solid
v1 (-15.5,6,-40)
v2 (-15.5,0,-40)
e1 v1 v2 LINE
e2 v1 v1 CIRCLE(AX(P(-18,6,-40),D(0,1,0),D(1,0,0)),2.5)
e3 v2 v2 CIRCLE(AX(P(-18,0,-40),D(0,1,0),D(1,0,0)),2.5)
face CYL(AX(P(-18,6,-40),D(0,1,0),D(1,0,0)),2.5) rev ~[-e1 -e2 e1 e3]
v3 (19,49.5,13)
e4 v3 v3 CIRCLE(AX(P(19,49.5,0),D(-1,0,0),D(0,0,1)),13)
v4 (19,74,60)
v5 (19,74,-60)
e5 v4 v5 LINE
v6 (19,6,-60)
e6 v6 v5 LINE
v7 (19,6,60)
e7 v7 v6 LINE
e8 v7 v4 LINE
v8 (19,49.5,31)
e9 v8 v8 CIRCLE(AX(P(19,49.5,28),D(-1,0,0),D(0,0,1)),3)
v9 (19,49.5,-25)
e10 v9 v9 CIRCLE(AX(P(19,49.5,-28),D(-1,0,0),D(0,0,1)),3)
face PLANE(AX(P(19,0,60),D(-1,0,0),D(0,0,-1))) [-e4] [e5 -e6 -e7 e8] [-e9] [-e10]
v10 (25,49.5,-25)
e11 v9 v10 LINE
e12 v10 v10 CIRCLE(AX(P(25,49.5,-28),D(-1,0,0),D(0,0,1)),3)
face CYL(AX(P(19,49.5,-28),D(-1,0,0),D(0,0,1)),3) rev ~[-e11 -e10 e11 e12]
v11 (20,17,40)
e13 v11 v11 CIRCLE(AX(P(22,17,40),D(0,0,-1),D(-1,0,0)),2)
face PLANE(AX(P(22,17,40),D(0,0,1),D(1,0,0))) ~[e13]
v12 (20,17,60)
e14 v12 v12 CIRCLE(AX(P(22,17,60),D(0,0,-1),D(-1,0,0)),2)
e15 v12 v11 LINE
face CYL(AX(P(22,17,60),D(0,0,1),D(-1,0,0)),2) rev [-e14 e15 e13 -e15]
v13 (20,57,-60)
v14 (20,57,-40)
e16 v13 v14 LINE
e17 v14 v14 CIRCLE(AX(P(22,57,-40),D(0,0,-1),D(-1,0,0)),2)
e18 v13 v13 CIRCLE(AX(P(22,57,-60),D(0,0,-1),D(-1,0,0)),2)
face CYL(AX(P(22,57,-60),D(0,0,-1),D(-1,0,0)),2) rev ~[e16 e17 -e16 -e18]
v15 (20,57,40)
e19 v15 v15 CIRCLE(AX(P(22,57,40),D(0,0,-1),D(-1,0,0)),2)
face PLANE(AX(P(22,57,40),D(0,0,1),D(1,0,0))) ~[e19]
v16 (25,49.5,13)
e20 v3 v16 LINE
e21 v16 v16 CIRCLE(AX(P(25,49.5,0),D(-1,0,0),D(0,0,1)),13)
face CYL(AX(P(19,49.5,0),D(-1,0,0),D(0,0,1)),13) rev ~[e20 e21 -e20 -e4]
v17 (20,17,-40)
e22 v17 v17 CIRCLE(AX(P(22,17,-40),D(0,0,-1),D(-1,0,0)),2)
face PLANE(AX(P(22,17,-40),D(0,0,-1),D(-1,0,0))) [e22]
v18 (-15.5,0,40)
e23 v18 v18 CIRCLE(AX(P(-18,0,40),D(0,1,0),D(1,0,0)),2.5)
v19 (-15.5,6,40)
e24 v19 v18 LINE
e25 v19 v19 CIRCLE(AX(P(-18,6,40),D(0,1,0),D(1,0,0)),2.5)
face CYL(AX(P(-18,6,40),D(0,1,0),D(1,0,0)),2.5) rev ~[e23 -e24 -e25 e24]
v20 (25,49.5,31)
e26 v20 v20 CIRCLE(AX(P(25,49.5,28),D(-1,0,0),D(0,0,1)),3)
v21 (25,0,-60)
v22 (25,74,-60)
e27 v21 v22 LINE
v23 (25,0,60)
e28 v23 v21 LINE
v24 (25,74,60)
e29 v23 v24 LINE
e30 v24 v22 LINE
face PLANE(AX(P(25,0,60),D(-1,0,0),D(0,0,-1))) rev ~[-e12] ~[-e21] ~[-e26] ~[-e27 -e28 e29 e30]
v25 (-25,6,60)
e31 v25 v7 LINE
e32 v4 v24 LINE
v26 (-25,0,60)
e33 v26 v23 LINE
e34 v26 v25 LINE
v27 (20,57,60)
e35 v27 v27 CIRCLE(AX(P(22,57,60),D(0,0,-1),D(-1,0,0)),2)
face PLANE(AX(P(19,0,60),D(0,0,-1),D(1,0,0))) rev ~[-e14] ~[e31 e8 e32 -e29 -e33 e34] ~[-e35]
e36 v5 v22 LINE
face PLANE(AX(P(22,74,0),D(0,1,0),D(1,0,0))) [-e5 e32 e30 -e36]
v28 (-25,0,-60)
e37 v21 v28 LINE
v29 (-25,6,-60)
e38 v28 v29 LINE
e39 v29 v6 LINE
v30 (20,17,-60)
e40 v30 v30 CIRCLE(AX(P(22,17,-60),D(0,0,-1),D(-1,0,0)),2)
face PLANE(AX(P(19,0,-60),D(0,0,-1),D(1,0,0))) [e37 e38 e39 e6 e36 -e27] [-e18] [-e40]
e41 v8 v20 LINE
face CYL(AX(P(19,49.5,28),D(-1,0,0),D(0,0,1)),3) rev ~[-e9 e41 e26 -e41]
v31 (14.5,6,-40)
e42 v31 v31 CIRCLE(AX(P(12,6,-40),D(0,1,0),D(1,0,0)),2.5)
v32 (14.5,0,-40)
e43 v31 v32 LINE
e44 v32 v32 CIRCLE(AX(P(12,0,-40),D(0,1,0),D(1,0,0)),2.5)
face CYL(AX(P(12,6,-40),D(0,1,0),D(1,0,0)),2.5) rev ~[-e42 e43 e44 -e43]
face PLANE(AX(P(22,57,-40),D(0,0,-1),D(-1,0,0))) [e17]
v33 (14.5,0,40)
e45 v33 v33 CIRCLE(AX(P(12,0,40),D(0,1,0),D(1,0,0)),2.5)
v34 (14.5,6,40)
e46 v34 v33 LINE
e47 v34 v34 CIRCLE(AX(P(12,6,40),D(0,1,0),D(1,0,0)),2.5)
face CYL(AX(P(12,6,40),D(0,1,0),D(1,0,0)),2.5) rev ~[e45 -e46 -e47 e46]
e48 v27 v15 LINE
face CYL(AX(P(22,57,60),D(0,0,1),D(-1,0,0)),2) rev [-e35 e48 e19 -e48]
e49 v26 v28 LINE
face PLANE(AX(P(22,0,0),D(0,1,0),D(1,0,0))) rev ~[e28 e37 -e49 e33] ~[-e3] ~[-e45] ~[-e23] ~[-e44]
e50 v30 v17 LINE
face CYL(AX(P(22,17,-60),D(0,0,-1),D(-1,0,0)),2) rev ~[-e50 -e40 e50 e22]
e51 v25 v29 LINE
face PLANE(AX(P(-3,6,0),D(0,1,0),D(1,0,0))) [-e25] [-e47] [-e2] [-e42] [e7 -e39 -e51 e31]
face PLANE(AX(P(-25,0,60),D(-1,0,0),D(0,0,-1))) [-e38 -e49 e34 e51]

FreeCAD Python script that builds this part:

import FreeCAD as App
import Part
import Sketcher

V = App.Vector


def add_polygon(sketch, points):
    """Adds a closed chain of lines whose ends are joined by coincident constraints."""
    first, n = sketch.GeometryCount, len(points)
    for a, b in zip(points, points[1:] + points[:1]):
        sketch.addGeometry(Part.LineSegment(App.Vector(*a, 0), App.Vector(*b, 0)), False)
    for i in range(n):
        sketch.addConstraint(Sketcher.Constraint("Coincident", first + i, 2, first + (i + 1) % n, 1))

doc = App.newDocument("Part")
body = doc.addObject("PartDesign::Body", "Body")

sketch1 = body.newObject("Sketcher::SketchObject", "Sketch")
sketch1.AttachmentSupport = (doc.getObject("XZ_Plane"), [""])
sketch1.MapMode = "FlatFace"
add_polygon(sketch1, [(-25, -60), (-25, 60), (19, 60), (19, -60)])
sketch1.addConstraint([
    Sketcher.Constraint("Vertical", 0),
    Sketcher.Constraint("Horizontal", 1),
    Sketcher.Constraint("Vertical", 2),
    Sketcher.Constraint("Horizontal", 3),
    Sketcher.Constraint("DistanceX", 1, 1, 1, 2, 44.0),
    Sketcher.Constraint("DistanceY", 0, 1, 0, 2, 120.0),
    Sketcher.Constraint("DistanceX", 0, 2, -1, 1, 25.0),
    Sketcher.Constraint("DistanceY", -1, 1, 0, 2, 60.0),
])
pad1 = body.newObject("PartDesign::Pad", "Pad")
pad1.Profile = sketch1
pad1.Length = 6
pad1.Reversed = True

sketch2 = body.newObject("Sketcher::SketchObject", "Sketch001")
sketch2.AttachmentSupport = (doc.getObject("XZ_Plane"), [""])
sketch2.MapMode = "FlatFace"
add_polygon(sketch2, [(19, -60), (19, 60), (25, 60), (25, -60)])
sketch2.addConstraint([
    Sketcher.Constraint("Vertical", 0),
    Sketcher.Constraint("Horizontal", 1),
    Sketcher.Constraint("Vertical", 2),
    Sketcher.Constraint("Horizontal", 3),
    Sketcher.Constraint("DistanceX", 1, 1, 1, 2, 6.0),
    Sketcher.Constraint("DistanceY", 0, 1, 0, 2, 120.0),
    Sketcher.Constraint("DistanceX", -1, 1, 0, 2, 19.0),
    Sketcher.Constraint("DistanceY", -1, 1, 0, 2, 60.0),
])
pad2 = body.newObject("PartDesign::Pad", "Pad001")
pad2.Profile = sketch2
pad2.Length = 74
pad2.Reversed = True

sketch3 = body.newObject("Sketcher::SketchObject", "Sketch002")
sketch3.AttachmentSupport = (doc.getObject("YZ_Plane"), [""])
sketch3.MapMode = "FlatFace"
sketch3.AttachmentOffset = App.Placement(V(0, 0, 19), App.Rotation())
sketch3.addGeometry([
    Part.Circle(V(49.5, 0, 0), V(0, 0, 1), 13),
    Part.Circle(V(49.5, -28, 0), V(0, 0, 1), 3),
    Part.Circle(V(49.5, 28, 0), V(0, 0, 1), 3),
], False)
sketch3.addConstraint([
    Sketcher.Constraint("Equal", 1, 2),
    Sketcher.Constraint("Symmetric", 1, 3, 2, 3, -1),
    Sketcher.Constraint("PointOnObject", 0, 3, -1),
    Sketcher.Constraint("Vertical", 0, 3, 1, 3),
    Sketcher.Constraint("Diameter", 0, 26.0),
    Sketcher.Constraint("Diameter", 1, 6.0),
    Sketcher.Constraint("DistanceY", 1, 3, -1, 1, 28.0),
    Sketcher.Constraint("DistanceX", -1, 1, 0, 3, 49.5),
])
pocket1 = body.newObject("PartDesign::Pocket", "Pocket")
pocket1.Profile = sketch3
pocket1.Type = "ThroughAll"
pocket1.Reversed = True

sketch4 = body.newObject("Sketcher::SketchObject", "Sketch003")
sketch4.AttachmentSupport = (doc.getObject("XZ_Plane"), [""])
sketch4.MapMode = "FlatFace"
sketch4.AttachmentOffset = App.Placement(V(0, 0, -6), App.Rotation())
sketch4.addGeometry([
    Part.Circle(V(-18, -40, 0), V(0, 0, 1), 2.5),
    Part.Circle(V(12, -40, 0), V(0, 0, 1), 2.5),
    Part.Circle(V(-18, 40, 0), V(0, 0, 1), 2.5),
    Part.Circle(V(12, 40, 0), V(0, 0, 1), 2.5),
], False)
sketch4.addConstraint([
    Sketcher.Constraint("Equal", 0, 1),
    Sketcher.Constraint("Equal", 1, 2),
    Sketcher.Constraint("Equal", 2, 3),
    Sketcher.Constraint("Symmetric", 0, 3, 2, 3, -1),
    Sketcher.Constraint("Symmetric", 1, 3, 3, 3, -1),
    Sketcher.Constraint("Horizontal", 0, 3, 1, 3),
    Sketcher.Constraint("Diameter", 0, 5.0),
    Sketcher.Constraint("DistanceX", 0, 3, -1, 1, 18.0),
    Sketcher.Constraint("DistanceY", 0, 3, -1, 1, 40.0),
    Sketcher.Constraint("DistanceX", -1, 1, 1, 3, 12.0),
])
pocket2 = body.newObject("PartDesign::Pocket", "Pocket001")
pocket2.Profile = sketch4
pocket2.Length = 10
pocket2.Reversed = True

sketch5 = body.newObject("Sketcher::SketchObject", "Sketch004")
sketch5.AttachmentSupport = (doc.getObject("XY_Plane"), [""])
sketch5.MapMode = "FlatFace"
sketch5.AttachmentOffset = App.Placement(V(0, 0, -60), App.Rotation())
sketch5.addGeometry([
    Part.Circle(V(22, 17, 0), V(0, 0, 1), 2),
    Part.Circle(V(22, 57, 0), V(0, 0, 1), 2),
], False)
sketch5.addConstraint([
    Sketcher.Constraint("Equal", 0, 1),
    Sketcher.Constraint("Vertical", 0, 3, 1, 3),
    Sketcher.Constraint("Diameter", 0, 4.0),
    Sketcher.Constraint("DistanceX", -1, 1, 0, 3, 22.0),
    Sketcher.Constraint("DistanceY", -1, 1, 0, 3, 17.0),
    Sketcher.Constraint("DistanceY", -1, 1, 1, 3, 57.0),
])
pocket3 = body.newObject("PartDesign::Pocket", "Pocket002")
pocket3.Profile = sketch5
pocket3.Length = 20
pocket3.Reversed = True
doc.recompute()

mirrored = body.newObject("PartDesign::Mirrored", "Mirrored")
mirrored.Originals = [pocket3]
mirrored.MirrorPlane = (doc.getObject("XY_Plane"), [""])
body.Tip = mirrored

doc.recompute()
